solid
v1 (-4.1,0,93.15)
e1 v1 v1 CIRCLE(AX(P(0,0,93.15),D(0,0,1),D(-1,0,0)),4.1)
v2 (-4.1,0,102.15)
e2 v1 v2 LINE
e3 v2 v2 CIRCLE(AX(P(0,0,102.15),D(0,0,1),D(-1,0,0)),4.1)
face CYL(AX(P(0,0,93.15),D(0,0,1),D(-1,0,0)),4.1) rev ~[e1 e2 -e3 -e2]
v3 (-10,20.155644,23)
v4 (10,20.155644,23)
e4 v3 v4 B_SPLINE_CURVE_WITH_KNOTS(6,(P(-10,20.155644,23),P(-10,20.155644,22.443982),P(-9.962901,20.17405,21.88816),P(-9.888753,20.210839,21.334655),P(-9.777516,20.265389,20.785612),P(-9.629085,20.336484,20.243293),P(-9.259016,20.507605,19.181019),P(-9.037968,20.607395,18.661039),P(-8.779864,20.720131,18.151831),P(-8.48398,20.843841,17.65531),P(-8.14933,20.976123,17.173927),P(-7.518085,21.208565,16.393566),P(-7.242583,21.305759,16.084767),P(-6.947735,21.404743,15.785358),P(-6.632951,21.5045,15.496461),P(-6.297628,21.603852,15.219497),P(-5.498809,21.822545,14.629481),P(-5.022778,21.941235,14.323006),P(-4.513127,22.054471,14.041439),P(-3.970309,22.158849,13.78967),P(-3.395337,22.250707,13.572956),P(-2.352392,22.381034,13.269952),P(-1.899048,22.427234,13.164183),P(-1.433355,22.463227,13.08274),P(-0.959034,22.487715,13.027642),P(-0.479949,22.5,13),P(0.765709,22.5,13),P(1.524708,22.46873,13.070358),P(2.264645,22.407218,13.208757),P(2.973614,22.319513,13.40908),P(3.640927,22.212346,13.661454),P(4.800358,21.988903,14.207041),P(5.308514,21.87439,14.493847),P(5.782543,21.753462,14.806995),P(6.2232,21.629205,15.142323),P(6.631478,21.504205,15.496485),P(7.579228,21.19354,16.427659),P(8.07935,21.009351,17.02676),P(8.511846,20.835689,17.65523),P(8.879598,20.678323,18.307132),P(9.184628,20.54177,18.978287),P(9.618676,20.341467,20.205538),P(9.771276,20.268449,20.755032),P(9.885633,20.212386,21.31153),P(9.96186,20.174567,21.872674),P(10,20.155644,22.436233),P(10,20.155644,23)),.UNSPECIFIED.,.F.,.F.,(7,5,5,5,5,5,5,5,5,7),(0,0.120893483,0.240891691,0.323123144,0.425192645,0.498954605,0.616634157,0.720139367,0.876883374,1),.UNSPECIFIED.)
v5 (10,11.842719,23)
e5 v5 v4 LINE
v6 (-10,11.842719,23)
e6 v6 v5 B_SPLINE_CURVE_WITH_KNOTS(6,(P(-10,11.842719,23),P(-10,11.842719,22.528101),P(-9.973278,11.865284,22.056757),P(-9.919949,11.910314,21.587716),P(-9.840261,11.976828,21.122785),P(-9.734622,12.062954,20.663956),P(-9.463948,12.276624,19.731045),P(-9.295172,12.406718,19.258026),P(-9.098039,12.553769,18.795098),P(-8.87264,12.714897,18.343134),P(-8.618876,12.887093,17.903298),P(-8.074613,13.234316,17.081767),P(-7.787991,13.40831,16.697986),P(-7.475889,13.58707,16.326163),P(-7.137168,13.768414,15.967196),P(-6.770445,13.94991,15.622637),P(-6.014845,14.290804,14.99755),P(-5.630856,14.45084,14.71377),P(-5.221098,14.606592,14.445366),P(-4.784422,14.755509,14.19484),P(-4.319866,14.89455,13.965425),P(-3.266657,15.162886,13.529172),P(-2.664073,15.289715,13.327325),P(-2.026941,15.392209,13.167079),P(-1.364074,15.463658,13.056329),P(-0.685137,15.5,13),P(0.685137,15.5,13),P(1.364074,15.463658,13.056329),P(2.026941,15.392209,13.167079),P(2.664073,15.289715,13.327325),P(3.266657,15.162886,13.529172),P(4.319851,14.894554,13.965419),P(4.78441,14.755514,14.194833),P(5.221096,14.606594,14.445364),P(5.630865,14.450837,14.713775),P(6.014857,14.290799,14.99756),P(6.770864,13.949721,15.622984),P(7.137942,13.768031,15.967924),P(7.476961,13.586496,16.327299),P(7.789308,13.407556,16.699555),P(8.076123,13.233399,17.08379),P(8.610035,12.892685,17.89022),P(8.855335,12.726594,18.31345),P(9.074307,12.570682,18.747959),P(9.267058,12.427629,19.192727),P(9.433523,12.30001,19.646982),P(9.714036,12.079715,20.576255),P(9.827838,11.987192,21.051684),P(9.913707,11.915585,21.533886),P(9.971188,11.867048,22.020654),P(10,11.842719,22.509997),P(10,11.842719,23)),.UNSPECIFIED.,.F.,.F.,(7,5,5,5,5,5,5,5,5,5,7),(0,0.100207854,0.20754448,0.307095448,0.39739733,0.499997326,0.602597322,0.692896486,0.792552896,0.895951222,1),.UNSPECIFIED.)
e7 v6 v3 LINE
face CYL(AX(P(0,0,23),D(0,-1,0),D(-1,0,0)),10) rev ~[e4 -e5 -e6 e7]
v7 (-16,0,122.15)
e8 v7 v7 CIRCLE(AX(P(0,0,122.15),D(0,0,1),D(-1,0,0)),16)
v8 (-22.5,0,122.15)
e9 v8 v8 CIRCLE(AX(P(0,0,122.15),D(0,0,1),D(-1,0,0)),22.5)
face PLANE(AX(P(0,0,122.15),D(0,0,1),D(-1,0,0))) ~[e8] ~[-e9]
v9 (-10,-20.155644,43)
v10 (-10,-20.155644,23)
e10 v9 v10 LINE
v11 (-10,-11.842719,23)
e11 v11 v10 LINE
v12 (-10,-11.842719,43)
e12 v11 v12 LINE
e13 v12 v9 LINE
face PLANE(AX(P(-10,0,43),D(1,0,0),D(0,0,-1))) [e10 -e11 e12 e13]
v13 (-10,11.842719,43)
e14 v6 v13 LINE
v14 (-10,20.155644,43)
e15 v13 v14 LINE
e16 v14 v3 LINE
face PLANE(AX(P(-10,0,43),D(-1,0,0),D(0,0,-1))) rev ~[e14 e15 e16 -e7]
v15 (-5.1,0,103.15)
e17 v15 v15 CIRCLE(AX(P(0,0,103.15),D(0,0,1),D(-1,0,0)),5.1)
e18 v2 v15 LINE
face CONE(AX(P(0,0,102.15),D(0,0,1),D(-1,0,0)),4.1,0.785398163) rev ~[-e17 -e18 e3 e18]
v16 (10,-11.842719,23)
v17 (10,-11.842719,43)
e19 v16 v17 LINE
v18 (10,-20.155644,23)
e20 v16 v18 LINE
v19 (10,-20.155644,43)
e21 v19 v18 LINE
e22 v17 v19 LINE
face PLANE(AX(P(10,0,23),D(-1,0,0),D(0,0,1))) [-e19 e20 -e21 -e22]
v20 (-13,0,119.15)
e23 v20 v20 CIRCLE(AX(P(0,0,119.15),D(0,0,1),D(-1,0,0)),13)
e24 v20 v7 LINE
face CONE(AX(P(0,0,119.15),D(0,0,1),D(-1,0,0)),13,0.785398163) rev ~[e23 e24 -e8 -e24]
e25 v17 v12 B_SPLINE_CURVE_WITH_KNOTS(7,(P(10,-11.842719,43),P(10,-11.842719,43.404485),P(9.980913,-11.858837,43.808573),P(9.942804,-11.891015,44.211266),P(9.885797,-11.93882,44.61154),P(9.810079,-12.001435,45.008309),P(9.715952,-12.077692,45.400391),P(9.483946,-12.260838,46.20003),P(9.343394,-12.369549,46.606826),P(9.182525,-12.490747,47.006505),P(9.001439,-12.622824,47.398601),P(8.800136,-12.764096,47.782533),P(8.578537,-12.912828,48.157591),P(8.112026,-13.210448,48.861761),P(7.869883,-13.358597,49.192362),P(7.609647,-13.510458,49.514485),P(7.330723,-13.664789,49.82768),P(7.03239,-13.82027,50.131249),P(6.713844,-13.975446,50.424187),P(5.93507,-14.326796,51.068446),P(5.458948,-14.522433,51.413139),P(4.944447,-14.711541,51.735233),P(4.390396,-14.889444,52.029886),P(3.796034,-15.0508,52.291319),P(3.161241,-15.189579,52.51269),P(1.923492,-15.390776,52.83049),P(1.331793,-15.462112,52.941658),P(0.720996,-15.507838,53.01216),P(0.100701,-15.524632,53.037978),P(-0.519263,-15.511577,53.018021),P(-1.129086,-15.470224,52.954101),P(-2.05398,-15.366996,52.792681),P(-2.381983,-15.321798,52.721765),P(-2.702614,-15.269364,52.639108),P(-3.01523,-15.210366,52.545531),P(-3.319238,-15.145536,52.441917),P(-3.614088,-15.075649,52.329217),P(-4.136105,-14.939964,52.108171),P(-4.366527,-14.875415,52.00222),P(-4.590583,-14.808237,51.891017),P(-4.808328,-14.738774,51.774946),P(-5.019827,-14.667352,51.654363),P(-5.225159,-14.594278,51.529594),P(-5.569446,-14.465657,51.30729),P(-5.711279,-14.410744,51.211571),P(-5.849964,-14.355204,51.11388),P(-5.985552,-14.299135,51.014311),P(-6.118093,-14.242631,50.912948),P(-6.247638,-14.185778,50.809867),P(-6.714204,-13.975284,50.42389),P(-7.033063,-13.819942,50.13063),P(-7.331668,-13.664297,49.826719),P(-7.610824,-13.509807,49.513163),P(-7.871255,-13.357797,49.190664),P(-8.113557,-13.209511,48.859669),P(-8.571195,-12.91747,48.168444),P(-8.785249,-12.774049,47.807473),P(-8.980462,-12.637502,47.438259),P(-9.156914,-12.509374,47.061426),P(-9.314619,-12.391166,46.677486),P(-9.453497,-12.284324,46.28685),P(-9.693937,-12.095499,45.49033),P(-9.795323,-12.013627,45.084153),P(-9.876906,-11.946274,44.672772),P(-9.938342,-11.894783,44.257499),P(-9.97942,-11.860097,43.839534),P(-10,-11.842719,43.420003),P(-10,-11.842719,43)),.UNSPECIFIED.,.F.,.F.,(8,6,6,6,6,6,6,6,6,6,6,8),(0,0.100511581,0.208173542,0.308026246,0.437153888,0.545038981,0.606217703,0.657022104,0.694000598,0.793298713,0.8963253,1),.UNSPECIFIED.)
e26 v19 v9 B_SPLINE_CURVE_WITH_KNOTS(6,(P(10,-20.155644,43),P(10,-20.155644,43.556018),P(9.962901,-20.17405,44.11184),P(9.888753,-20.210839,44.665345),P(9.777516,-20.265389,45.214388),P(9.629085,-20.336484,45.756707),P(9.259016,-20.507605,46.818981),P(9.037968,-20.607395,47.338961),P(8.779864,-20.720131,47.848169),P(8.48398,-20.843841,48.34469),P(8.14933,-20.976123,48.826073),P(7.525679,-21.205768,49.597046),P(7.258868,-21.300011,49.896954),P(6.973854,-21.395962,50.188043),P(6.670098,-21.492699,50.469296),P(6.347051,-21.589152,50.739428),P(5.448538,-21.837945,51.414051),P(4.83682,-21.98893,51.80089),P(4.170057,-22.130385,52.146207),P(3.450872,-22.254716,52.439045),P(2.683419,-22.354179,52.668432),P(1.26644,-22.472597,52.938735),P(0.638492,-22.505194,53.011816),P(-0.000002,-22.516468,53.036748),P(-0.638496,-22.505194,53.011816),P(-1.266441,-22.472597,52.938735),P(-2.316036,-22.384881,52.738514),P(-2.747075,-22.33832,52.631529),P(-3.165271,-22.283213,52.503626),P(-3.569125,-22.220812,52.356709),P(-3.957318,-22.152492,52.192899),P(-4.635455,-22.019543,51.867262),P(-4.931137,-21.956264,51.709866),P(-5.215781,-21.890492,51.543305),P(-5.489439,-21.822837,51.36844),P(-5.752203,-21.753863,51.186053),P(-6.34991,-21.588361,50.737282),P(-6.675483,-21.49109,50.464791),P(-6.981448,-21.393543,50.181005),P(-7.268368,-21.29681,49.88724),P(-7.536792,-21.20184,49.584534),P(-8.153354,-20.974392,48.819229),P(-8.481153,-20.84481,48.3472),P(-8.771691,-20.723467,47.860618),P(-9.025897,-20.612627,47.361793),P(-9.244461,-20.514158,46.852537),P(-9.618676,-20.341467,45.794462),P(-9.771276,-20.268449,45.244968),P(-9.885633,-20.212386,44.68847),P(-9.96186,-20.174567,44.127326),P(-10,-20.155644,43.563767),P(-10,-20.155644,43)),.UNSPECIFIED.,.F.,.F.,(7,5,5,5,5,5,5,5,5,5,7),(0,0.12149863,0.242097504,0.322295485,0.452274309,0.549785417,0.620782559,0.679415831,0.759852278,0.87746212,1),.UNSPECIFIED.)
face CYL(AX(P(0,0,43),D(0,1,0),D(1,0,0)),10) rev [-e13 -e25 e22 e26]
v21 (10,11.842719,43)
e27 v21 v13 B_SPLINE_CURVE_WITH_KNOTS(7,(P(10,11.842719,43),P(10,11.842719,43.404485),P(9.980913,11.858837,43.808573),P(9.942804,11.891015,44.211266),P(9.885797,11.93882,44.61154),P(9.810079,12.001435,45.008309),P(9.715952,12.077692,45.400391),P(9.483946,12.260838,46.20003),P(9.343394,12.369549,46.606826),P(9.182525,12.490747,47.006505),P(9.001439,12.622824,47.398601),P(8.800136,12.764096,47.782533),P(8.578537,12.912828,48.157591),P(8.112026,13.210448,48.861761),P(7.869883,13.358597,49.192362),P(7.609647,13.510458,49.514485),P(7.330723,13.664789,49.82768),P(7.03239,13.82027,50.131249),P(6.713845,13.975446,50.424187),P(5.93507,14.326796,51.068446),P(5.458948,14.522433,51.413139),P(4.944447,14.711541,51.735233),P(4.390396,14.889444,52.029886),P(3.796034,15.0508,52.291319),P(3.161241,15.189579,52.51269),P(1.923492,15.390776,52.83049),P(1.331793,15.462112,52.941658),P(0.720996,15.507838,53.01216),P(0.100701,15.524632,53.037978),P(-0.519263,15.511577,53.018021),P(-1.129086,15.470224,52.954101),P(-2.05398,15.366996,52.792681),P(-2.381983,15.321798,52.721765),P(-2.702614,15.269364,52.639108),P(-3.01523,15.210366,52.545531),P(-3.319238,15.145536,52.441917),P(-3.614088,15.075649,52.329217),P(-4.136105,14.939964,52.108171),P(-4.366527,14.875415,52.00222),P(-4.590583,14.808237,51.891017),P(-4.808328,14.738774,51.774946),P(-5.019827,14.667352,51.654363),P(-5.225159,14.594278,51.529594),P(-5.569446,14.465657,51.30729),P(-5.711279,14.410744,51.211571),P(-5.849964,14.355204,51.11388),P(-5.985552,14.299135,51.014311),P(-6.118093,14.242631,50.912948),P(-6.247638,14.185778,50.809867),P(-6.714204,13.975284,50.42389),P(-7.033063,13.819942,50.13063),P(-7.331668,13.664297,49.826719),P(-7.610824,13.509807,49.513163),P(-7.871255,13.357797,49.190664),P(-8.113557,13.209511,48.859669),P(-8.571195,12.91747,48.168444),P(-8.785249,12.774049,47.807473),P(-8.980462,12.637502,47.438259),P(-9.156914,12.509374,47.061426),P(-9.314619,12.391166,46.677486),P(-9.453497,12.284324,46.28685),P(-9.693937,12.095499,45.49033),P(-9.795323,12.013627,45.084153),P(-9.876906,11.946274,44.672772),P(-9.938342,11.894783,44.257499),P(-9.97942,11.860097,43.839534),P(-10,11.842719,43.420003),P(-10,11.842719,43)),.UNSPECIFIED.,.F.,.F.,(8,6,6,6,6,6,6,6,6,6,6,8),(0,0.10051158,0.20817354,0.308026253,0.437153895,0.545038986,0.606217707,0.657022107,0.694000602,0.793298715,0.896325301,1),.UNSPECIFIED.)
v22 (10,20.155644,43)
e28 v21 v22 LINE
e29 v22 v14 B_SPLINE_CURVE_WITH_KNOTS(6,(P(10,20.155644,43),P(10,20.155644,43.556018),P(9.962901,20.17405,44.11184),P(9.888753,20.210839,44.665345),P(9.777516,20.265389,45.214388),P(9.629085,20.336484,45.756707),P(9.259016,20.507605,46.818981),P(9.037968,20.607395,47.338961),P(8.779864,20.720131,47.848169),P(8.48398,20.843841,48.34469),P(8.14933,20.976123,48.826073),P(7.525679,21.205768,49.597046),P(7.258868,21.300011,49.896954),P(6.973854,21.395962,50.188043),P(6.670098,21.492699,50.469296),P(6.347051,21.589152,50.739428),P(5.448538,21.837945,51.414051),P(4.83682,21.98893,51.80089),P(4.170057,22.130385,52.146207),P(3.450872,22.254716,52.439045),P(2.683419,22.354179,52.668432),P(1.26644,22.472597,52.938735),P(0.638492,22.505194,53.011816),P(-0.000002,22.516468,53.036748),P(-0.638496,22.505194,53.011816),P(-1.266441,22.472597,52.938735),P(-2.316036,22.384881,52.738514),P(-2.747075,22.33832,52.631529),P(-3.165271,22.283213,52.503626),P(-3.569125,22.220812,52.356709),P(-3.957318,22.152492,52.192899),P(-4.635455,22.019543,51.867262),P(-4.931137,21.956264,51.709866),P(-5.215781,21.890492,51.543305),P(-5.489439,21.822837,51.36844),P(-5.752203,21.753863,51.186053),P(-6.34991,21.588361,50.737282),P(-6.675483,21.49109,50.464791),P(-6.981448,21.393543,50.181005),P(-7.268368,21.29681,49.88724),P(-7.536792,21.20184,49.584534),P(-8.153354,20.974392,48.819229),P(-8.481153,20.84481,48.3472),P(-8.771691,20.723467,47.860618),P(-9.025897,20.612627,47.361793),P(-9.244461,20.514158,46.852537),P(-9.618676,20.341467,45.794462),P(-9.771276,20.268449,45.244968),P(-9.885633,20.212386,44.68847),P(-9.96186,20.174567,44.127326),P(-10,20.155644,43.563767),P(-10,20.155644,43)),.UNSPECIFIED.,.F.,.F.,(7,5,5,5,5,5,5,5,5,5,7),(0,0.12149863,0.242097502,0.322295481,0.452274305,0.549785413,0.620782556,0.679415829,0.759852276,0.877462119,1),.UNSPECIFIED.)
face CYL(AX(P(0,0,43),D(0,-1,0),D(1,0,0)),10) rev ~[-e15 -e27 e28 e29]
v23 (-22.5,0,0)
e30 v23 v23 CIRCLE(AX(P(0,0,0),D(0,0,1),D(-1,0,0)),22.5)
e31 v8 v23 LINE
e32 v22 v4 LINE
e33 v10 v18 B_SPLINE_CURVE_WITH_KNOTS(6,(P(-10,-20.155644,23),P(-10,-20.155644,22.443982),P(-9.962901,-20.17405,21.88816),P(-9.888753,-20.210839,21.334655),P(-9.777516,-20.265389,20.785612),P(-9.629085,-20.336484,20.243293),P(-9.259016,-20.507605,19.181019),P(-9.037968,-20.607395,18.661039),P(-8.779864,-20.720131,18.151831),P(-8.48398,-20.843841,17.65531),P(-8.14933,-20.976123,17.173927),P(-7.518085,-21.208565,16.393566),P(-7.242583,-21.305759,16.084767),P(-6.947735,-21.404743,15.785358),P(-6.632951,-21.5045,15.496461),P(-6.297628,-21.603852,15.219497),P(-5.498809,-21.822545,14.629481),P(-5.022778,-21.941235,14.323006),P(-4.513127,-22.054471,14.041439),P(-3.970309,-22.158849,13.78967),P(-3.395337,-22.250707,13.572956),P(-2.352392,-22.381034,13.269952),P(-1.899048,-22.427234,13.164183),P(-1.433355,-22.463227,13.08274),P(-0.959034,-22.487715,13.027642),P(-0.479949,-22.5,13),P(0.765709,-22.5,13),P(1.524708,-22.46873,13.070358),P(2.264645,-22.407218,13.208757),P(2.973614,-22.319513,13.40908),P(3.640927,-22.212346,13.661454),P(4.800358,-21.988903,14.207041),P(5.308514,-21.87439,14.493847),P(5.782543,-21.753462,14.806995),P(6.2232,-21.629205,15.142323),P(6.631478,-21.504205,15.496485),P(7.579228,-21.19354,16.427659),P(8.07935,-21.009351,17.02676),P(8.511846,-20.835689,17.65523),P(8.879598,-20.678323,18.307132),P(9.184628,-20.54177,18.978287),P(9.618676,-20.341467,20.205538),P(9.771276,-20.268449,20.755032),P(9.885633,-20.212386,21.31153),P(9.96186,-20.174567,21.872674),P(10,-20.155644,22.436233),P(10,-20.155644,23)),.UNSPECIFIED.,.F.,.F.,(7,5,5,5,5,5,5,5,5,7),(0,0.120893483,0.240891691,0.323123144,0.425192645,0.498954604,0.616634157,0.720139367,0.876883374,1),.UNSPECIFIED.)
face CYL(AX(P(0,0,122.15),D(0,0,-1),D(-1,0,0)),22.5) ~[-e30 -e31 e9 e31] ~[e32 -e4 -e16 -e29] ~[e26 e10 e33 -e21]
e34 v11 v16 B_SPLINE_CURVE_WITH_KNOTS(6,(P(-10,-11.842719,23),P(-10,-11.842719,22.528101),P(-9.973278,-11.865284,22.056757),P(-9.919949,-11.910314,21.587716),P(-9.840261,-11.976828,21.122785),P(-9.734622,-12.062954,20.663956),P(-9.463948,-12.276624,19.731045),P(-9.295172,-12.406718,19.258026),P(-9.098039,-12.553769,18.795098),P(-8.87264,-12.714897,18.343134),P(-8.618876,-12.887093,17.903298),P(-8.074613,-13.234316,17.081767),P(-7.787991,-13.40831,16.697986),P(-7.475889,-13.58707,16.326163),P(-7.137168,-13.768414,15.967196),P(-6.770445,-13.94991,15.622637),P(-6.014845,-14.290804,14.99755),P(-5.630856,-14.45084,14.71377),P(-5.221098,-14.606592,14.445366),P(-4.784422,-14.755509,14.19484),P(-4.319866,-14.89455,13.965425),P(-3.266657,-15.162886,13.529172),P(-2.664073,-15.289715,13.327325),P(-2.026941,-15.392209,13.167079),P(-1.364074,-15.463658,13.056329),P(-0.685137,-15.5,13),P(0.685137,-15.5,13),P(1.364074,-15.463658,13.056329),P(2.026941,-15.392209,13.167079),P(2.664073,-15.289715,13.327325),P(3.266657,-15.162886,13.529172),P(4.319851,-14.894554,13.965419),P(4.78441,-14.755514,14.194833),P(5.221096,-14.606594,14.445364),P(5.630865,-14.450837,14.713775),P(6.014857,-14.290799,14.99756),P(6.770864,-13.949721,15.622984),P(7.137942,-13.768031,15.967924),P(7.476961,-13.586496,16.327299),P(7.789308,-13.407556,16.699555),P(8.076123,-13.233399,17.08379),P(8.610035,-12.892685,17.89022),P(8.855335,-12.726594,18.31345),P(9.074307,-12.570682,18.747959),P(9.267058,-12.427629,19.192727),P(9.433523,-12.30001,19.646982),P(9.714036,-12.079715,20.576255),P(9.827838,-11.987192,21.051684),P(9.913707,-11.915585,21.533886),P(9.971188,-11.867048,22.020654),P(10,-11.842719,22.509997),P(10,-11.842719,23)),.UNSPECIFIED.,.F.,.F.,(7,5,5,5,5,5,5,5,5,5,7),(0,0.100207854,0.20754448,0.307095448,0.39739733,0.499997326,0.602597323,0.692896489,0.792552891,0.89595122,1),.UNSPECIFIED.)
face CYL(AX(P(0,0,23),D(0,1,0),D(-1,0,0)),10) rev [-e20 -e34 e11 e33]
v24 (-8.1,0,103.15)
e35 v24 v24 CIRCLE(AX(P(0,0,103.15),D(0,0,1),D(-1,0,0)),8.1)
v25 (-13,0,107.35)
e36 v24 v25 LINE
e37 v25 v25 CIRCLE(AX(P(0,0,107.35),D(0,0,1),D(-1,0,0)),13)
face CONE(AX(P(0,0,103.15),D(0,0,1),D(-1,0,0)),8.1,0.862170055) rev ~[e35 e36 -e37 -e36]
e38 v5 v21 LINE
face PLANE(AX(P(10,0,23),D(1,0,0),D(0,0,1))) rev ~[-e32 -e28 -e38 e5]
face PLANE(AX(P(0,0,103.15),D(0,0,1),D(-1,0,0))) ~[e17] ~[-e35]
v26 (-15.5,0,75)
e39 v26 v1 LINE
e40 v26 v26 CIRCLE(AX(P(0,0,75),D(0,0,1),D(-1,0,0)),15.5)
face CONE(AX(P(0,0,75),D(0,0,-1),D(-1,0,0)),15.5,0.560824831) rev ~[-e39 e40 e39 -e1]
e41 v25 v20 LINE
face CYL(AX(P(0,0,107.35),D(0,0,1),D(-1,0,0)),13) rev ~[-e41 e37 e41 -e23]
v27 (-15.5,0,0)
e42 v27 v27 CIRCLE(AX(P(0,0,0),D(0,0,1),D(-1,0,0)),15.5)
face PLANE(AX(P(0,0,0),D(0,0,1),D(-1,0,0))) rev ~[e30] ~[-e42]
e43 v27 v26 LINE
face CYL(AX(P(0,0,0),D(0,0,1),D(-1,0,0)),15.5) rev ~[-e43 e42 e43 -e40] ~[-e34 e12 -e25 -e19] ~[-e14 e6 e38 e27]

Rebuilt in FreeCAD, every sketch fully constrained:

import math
import FreeCAD as App
import Part
import Sketcher
Q = App.Units.Quantity

doc = App.newDocument("Part")
body = doc.addObject("PartDesign::Body", "Body")

# Sketch on XZ plane
sketch1 = body.newObject("Sketcher::SketchObject", "Sketch")
sketch1.AttachmentSupport = (doc.getObject("XZ_Plane"), [""])
sketch1.MapMode = "FlatFace"
sketch1.addGeometry([
    Part.LineSegment(App.Vector(-22.5, 0, 0), App.Vector(-15.5, 0, 0)),  # 0
    Part.LineSegment(App.Vector(-15.5, 0, 0), App.Vector(-15.5, 75, 0)),  # 1
    Part.LineSegment(App.Vector(-15.5, 75, 0), App.Vector(-4.1, 93.15, 0)),  # 2
    Part.LineSegment(App.Vector(-4.1, 93.15, 0), App.Vector(-4.1, 102.15, 0)),  # 3
    Part.LineSegment(App.Vector(-4.1, 102.15, 0), App.Vector(-5.1, 103.15, 0)),  # 4
    Part.LineSegment(App.Vector(-5.1, 103.15, 0), App.Vector(-8.1, 103.15, 0)),  # 5
    Part.LineSegment(App.Vector(-8.1, 103.15, 0), App.Vector(-13, 107.35, 0)),  # 6
    Part.LineSegment(App.Vector(-13, 107.35, 0), App.Vector(-13, 119.15, 0)),  # 7
    Part.LineSegment(App.Vector(-13, 119.15, 0), App.Vector(-16, 122.15, 0)),  # 8
    Part.LineSegment(App.Vector(-16, 122.15, 0), App.Vector(-22.5, 122.15, 0)),  # 9
    Part.LineSegment(App.Vector(-22.5, 122.15, 0), App.Vector(-22.5, 0, 0)),  # 10
], False)
sketch1.addConstraint([
    Sketcher.Constraint("Coincident", 0, 2, 1, 1),
    Sketcher.Constraint("Coincident", 1, 2, 2, 1),
    Sketcher.Constraint("Coincident", 2, 2, 3, 1),
    Sketcher.Constraint("Coincident", 3, 2, 4, 1),
    Sketcher.Constraint("Coincident", 4, 2, 5, 1),
    Sketcher.Constraint("Coincident", 5, 2, 6, 1),
    Sketcher.Constraint("Coincident", 6, 2, 7, 1),
    Sketcher.Constraint("Coincident", 7, 2, 8, 1),
    Sketcher.Constraint("Coincident", 8, 2, 9, 1),
    Sketcher.Constraint("Coincident", 9, 2, 10, 1),
    Sketcher.Constraint("Coincident", 10, 2, 0, 1),
    Sketcher.Constraint("Horizontal", 0),
    Sketcher.Constraint("Vertical", 1),
    Sketcher.Constraint("Vertical", 3),
    Sketcher.Constraint("Horizontal", 5),
    Sketcher.Constraint("Vertical", 7),
    Sketcher.Constraint("Horizontal", 9),
    Sketcher.Constraint("Vertical", 10),
    Sketcher.Constraint("PointOnObject", 0, 2, -1),
    Sketcher.Constraint("Parallel", 4, 8),
    Sketcher.Constraint("DistanceX", 0, 1, 0, 2, Q("7 mm")),
    Sketcher.Constraint("DistanceX", 5, 2, 5, 1, Q("3 mm")),
    Sketcher.Constraint("DistanceY", 1, 1, 1, 2, Q("75 mm")),
    Sketcher.Constraint("DistanceY", 3, 1, 3, 2, Q("9 mm")),
    Sketcher.Constraint("Angle", 4, Q("135 deg")),
    Sketcher.Constraint("DistanceX", 9, 2, 9, 1, Q("6.5 mm")),
    Sketcher.Constraint("DistanceY", 7, 1, 7, 2, Q("11.8 mm")),
    Sketcher.Constraint("DistanceX", 6, 2, -1, 1, Q("13 mm")),
    Sketcher.Constraint("DistanceX", 8, 2, -1, 1, Q("16 mm")),
    Sketcher.Constraint("DistanceX", 4, 2, 3, 2, Q("1 mm")),
    Sketcher.Constraint("DistanceY", 5, 2, 7, 2, Q("16 mm")),
    Sketcher.Constraint("DistanceY", 10, 2, 10, 1, Q("122.15 mm")),
    Sketcher.Constraint("DistanceX", 2, 2, -1, 1, Q("4.1 mm")),
])
revolution = body.newObject("PartDesign::Revolution", "Revolution")
revolution.Profile = sketch1
revolution.ReferenceAxis = (sketch1, ["V_Axis"])
revolution.Angle = 360

# Sketch on XZ plane
sketch2 = body.newObject("Sketcher::SketchObject", "Sketch001")
sketch2.AttachmentSupport = (doc.getObject("XZ_Plane"), [""])
sketch2.MapMode = "FlatFace"
sketch2.addGeometry([
    Part.ArcOfCircle(Part.Circle(App.Vector(0, 23, 0), App.Vector(0, 0, 1), 10), math.radians(180), math.radians(360)),
    Part.LineSegment(App.Vector(10, 23, 0), App.Vector(10, 43, 0)),
    Part.ArcOfCircle(Part.Circle(App.Vector(0, 43, 0), App.Vector(0, 0, 1), 10), math.radians(0), math.radians(180)),
    Part.LineSegment(App.Vector(-10, 43, 0), App.Vector(-10, 23, 0)),
], False)
sketch2.addConstraint([
    Sketcher.Constraint("Tangent", 0, 2, 1, 1),
    Sketcher.Constraint("Tangent", 1, 2, 2, 1),
    Sketcher.Constraint("Tangent", 2, 2, 3, 1),
    Sketcher.Constraint("Tangent", 3, 2, 0, 1),
    Sketcher.Constraint("Vertical", 1),
    Sketcher.Constraint("Vertical", 3),
    Sketcher.Constraint("PointOnObject", 0, 3, -2),
    Sketcher.Constraint("Radius", 0, Q("10 mm")),
    Sketcher.Constraint("DistanceY", 1, 1, 1, 2, Q("20 mm")),
    Sketcher.Constraint("DistanceY", -1, 1, 0, 3, Q("23 mm")),
])
pocket1 = body.newObject("PartDesign::Pocket", "Pocket")
pocket1.Profile = sketch2
pocket1.Type = "ThroughAll"
pocket1.Midplane = True

doc.recompute()
